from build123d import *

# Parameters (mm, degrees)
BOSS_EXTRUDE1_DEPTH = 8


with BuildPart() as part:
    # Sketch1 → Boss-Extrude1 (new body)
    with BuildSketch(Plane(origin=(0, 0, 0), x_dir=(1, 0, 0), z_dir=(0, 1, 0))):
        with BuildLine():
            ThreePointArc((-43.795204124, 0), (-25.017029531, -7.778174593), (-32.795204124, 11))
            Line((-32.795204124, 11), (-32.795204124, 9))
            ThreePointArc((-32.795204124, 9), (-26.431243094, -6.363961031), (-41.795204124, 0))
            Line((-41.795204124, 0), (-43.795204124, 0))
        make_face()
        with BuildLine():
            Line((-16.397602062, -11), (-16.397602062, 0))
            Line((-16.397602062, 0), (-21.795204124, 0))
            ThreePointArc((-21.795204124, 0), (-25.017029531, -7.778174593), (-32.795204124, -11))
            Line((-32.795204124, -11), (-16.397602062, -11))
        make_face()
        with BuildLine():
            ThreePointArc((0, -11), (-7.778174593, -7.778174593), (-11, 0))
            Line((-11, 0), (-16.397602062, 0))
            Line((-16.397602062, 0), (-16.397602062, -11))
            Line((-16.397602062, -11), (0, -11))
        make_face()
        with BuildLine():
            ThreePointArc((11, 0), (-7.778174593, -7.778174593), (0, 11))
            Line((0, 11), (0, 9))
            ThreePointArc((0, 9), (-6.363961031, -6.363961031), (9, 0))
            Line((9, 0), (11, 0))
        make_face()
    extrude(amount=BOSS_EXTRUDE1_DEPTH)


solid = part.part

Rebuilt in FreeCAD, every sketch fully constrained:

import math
import FreeCAD as App
import Part
import Sketcher
from FreeCAD import Vector
Q = App.Units.Quantity

doc = App.newDocument("Part")
params = doc.addObject("Spreadsheet::Sheet", "Params")
for row, (alias, value) in enumerate([
    ("sketch1_radius", "11 mm"),
    ("sketch1_radius2", "9 mm"),
    ("pad1_length", "8 mm"),
], start=1):
    params.set(f"A{row}", alias)
    params.set(f"B{row}", "=" + value)
    params.setAlias(f"B{row}", alias)

body = doc.addObject("PartDesign::Body", "Body")

# Sketch on XZ plane
sketch1 = doc.addObject("Sketcher::SketchObject", "Sketch")
body.addObject(sketch1)
sketch1.AttachmentSupport = (doc.XZ_Plane, [""])
sketch1.MapMode = "FlatFace"
sketch1.addGeometry([
    Part.ArcOfCircle(Part.Circle(Vector(-32.8, 0, 0), Vector(0, 0, 1), 11), math.radians(90), math.radians(180)),  # 0
    Part.LineSegment(Vector(-32.8, 11, 0), Vector(0, 11, 0)),  # 1
    Part.ArcOfCircle(Part.Circle(Vector(0, 0, 0), Vector(0, 0, 1), 11), math.radians(0), math.radians(90)),  # 2
    Part.LineSegment(Vector(11, 0, 0), Vector(9, 0, 0)),  # 3
    Part.ArcOfCircle(Part.Circle(Vector(0, 0, 0), Vector(0, 0, 1), 9), math.radians(0), math.radians(270)),  # 4
    Part.LineSegment(Vector(0, -9, 0), Vector(0, -11, 0)),  # 5
    Part.ArcOfCircle(Part.Circle(Vector(0, 0, 0), Vector(0, 0, 1), 11), math.radians(180), math.radians(270)),  # 6
    Part.LineSegment(Vector(-11, 0, 0), Vector(-21.8, 0, 0)),  # 7
    Part.ArcOfCircle(Part.Circle(Vector(-32.8, 0, 0), Vector(0, 0, 1), 11), math.radians(-90), math.radians(0)),  # 8
    Part.LineSegment(Vector(-32.8, -11, 0), Vector(-32.8, -9, 0)),  # 9
    Part.ArcOfCircle(Part.Circle(Vector(-32.8, 0, 0), Vector(0, 0, 1), 9), math.radians(-90), math.radians(180)),  # 10
    Part.LineSegment(Vector(-41.8, 0, 0), Vector(-43.8, 0, 0)),  # 11
], False)
sketch1.addConstraint([
    Sketcher.Constraint("Tangent", 0, 1, 1, 1),
    Sketcher.Constraint("Tangent", 1, 2, 2, 2),
    Sketcher.Constraint("Coincident", 2, 1, 3, 1),
    Sketcher.Constraint("Coincident", 3, 2, 4, 1),
    Sketcher.Constraint("Coincident", 4, 2, 5, 1),
    Sketcher.Constraint("Coincident", 5, 2, 6, 2),
    Sketcher.Constraint("Coincident", 6, 1, 7, 1),
    Sketcher.Constraint("Coincident", 7, 2, 8, 2),
    Sketcher.Constraint("Coincident", 8, 1, 9, 1),
    Sketcher.Constraint("Coincident", 9, 2, 10, 1),
    Sketcher.Constraint("Coincident", 10, 2, 11, 1),
    Sketcher.Constraint("Coincident", 11, 2, 0, 2),
    Sketcher.Constraint("Horizontal", 1),
    Sketcher.Constraint("Horizontal", 3),
    Sketcher.Constraint("Vertical", 5),
    Sketcher.Constraint("Horizontal", 7),
    Sketcher.Constraint("Vertical", 9),
    Sketcher.Constraint("Horizontal", 11),
    Sketcher.Constraint("Coincident", 2, 3, -1, 1),
    Sketcher.Constraint("Coincident", 4, 3, -1, 1),
    Sketcher.Constraint("Coincident", 6, 3, -1, 1),
    Sketcher.Constraint("Coincident", 8, 3, 0, 3),
    Sketcher.Constraint("Coincident", 10, 3, 0, 3),
    Sketcher.Constraint("Equal", 0, 2),
    Sketcher.Constraint("Equal", 2, 6),
    Sketcher.Constraint("Equal", 6, 8),
    Sketcher.Constraint("Equal", 4, 10),
    Sketcher.Constraint("PointOnObject", 2, 1, -1),
    Sketcher.Constraint("PointOnObject", 4, 2, -2),
    Sketcher.Constraint("PointOnObject", 6, 1, -1),
    Sketcher.Constraint("PointOnObject", 10, 2, -1),
    Sketcher.Constraint("Vertical", 0, 1, 8, 1),
    Sketcher.Constraint("Radius", 0, Q("11 mm")),
    Sketcher.Constraint("Radius", 4, Q("9 mm")),
    Sketcher.Constraint("DistanceX", 1, 1, 1, 2, Q("32.795204 mm")),
])
sketch1.setExpression("Constraints[32]", "Params.sketch1_radius")
sketch1.setExpression("Constraints[33]", "Params.sketch1_radius2")
pad1 = doc.addObject("PartDesign::Pad", "Pad")
body.addObject(pad1)
pad1.Profile = sketch1
pad1.setExpression("Length", "Params.pad1_length")
pad1.Reversed = True

doc.recompute()
